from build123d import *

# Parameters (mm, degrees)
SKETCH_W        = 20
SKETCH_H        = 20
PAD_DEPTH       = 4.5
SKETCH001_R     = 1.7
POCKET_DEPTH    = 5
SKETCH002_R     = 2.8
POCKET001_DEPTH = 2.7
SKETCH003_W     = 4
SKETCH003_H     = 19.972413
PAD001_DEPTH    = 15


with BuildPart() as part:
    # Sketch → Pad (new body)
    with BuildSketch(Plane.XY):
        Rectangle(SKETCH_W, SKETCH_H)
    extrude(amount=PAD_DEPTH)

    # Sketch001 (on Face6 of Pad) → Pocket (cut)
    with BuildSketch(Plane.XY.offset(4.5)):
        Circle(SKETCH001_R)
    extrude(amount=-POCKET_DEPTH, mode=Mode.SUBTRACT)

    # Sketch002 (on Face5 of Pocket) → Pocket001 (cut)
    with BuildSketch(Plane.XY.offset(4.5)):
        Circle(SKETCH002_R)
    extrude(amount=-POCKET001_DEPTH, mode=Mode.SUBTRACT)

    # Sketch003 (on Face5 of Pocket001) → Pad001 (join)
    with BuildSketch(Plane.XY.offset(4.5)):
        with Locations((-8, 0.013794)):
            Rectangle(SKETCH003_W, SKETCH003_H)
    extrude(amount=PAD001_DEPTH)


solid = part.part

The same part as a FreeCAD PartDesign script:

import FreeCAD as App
import Part
import Sketcher


def add_polygon(sketch, points):
    """Adds a closed chain of lines whose ends are joined by coincident constraints."""
    first, n = sketch.GeometryCount, len(points)
    for a, b in zip(points, points[1:] + points[:1]):
        sketch.addGeometry(Part.LineSegment(App.Vector(*a, 0), App.Vector(*b, 0)), False)
    for i in range(n):
        sketch.addConstraint(Sketcher.Constraint("Coincident", first + i, 2, first + (i + 1) % n, 1))

doc = App.newDocument("Part")
body = doc.addObject("PartDesign::Body", "Body")

# Sketch on XY plane
sketch1 = doc.addObject("Sketcher::SketchObject", "Sketch")
body.addObject(sketch1)
sketch1.AttachmentSupport = (doc.XY_Plane, [""])
sketch1.MapMode = "FlatFace"
add_polygon(sketch1, [(-10, 10), (-10, -10), (10, -10), (10, 10)])  # lines 0-3
sketch1.addConstraint([
    Sketcher.Constraint("Vertical", 0),
    Sketcher.Constraint("Horizontal", 1),
    Sketcher.Constraint("Vertical", 2),
    Sketcher.Constraint("Horizontal", 3),
    Sketcher.Constraint("Symmetric", 0, 2, 2, 2, -1, 1),
    Sketcher.Constraint("Equal", 3, 0),
    Sketcher.Constraint("DistanceX", 1, 1, 1, 2, 20.0),
])
pad1 = doc.addObject("PartDesign::Pad", "Pad")
body.addObject(pad1)
pad1.Profile = sketch1
pad1.Length = 4.5

# Sketch on XY plane
sketch2 = doc.addObject("Sketcher::SketchObject", "Sketch001")
body.addObject(sketch2)
sketch2.AttachmentSupport = (doc.XY_Plane, [""])
sketch2.MapMode = "FlatFace"
sketch2.AttachmentOffset = App.Placement(App.Vector(0, 0, 4.5), App.Rotation())
sketch2.addGeometry(Part.Circle(App.Vector(0, 0, 0), App.Vector(0, 0, 1), 1.7), False)
sketch2.addConstraint([
    Sketcher.Constraint("Coincident", 0, 3, -1, 1),
    Sketcher.Constraint("Diameter", 0, 3.4),
])
pocket1 = doc.addObject("PartDesign::Pocket", "Pocket")
body.addObject(pocket1)
pocket1.Profile = sketch2
pocket1.Length = 5

# Sketch on XY plane
sketch3 = doc.addObject("Sketcher::SketchObject", "Sketch002")
body.addObject(sketch3)
sketch3.AttachmentSupport = (doc.XY_Plane, [""])
sketch3.MapMode = "FlatFace"
sketch3.AttachmentOffset = App.Placement(App.Vector(0, 0, 4.5), App.Rotation())
sketch3.addGeometry(Part.Circle(App.Vector(0, 0, 0), App.Vector(0, 0, 1), 2.8), False)
sketch3.addConstraint([
    Sketcher.Constraint("Coincident", 0, 3, -1, 1),
    Sketcher.Constraint("Diameter", 0, 5.6),
])
pocket2 = doc.addObject("PartDesign::Pocket", "Pocket001")
body.addObject(pocket2)
pocket2.Profile = sketch3
pocket2.Length = 2.7

# Sketch on XY plane
sketch4 = doc.addObject("Sketcher::SketchObject", "Sketch003")
body.addObject(sketch4)
sketch4.AttachmentSupport = (doc.XY_Plane, [""])
sketch4.MapMode = "FlatFace"
sketch4.AttachmentOffset = App.Placement(App.Vector(0, 0, 4.5), App.Rotation())
add_polygon(sketch4, [(-10, 10.000001), (-10, -9.972413), (-6, -9.972413), (-6, 10.000001)])  # lines 0-3
sketch4.addConstraint([
    Sketcher.Constraint("Vertical", 0),
    Sketcher.Constraint("Horizontal", 1),
    Sketcher.Constraint("Vertical", 2),
    Sketcher.Constraint("Horizontal", 3),
    Sketcher.Constraint("DistanceX", 1, 1, 1, 2, 4.0),
    Sketcher.Constraint("DistanceX", 0, 2, -1, 1, 10.0),
    Sketcher.Constraint("DistanceY", -1, 1, 2, 2, 10.000001),
    Sketcher.Constraint("DistanceY", 0, 2, 0, 1, 19.972413),
])
pad2 = doc.addObject("PartDesign::Pad", "Pad001")
body.addObject(pad2)
pad2.Profile = sketch4
pad2.Length = 15

doc.recompute()
